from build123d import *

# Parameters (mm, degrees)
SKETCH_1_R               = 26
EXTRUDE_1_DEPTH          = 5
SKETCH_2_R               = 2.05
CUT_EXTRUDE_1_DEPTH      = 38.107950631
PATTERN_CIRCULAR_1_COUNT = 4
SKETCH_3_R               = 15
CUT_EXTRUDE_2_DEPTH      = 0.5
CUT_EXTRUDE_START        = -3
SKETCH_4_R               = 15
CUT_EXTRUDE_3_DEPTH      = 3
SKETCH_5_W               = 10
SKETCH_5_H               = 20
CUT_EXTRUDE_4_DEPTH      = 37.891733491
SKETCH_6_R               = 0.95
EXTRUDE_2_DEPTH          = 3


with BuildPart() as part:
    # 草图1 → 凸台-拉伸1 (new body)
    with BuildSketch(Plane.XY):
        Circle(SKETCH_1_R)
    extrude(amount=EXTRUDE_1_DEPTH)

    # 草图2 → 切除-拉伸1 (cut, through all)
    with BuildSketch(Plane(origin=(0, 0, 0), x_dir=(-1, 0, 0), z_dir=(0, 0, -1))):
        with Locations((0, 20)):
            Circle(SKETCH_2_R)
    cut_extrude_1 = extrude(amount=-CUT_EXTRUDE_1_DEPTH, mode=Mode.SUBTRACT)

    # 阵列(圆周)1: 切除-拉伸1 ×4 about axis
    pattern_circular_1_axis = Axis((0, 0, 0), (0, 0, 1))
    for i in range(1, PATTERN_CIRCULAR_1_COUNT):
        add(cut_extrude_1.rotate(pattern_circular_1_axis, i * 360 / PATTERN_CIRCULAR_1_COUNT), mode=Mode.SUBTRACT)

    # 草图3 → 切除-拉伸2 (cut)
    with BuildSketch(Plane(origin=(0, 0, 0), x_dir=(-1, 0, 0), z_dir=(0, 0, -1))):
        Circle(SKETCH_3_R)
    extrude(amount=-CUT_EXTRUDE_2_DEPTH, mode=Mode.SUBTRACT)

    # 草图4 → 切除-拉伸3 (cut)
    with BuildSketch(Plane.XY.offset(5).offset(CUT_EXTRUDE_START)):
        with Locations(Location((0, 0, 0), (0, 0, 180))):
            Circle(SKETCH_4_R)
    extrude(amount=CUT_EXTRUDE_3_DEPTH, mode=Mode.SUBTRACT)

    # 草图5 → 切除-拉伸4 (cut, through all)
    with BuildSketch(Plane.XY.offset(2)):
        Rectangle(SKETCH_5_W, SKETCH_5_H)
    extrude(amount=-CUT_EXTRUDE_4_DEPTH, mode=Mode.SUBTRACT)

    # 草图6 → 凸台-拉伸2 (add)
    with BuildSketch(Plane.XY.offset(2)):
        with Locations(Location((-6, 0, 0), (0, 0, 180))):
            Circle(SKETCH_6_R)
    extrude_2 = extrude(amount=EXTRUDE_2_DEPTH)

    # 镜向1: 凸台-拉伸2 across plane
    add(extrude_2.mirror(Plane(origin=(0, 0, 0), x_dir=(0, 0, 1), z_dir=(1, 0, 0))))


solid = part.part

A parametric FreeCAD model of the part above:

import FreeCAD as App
import Part
import Sketcher
Q = App.Units.Quantity


def add_polygon(sketch, points):
    """Adds a closed chain of lines whose ends are joined by coincident constraints."""
    first, n = sketch.GeometryCount, len(points)
    for a, b in zip(points, points[1:] + points[:1]):
        sketch.addGeometry(Part.LineSegment(App.Vector(*a, 0), App.Vector(*b, 0)), False)
    for i in range(n):
        sketch.addConstraint(Sketcher.Constraint("Coincident", first + i, 2, first + (i + 1) % n, 1))

doc = App.newDocument("Part")
params = doc.addObject("Spreadsheet::Sheet", "Params")
for row, (alias, value) in enumerate([
    ("sketch1_diameter", "52 mm"),
    ("pad1_length", "5 mm"),
    ("sketch2_diameter", "4.1 mm"),
    ("sketch3_diameter", "30 mm"),
    ("pocket2_length", "0.5 mm"),
    ("sketch4_diameter", "30 mm"),
    ("pocket3_length", "3 mm"),
    ("sketch5_width", "10 mm"),
    ("sketch5_height", "20 mm"),
    ("sketch6_diameter", "1.9 mm"),
    ("pad2_length", "3 mm"),
], start=1):
    params.set(f"A{row}", alias)
    params.set(f"B{row}", "=" + value)
    params.setAlias(f"B{row}", alias)

body = doc.addObject("PartDesign::Body", "Body")

sketch1 = body.newObject("Sketcher::SketchObject", "Sketch")
sketch1.AttachmentSupport = (doc.getObject("XY_Plane"), [""])
sketch1.MapMode = "FlatFace"
sketch1.addGeometry(Part.Circle(App.Vector(0, 0, 0), App.Vector(0, 0, 1), 26), False)
sketch1.addConstraint([
    Sketcher.Constraint("Coincident", 0, 3, -1, 1),
    Sketcher.Constraint("Diameter", 0, Q("52 mm")),
])
sketch1.setExpression("Constraints[1]", "Params.sketch1_diameter")
pad1 = body.newObject("PartDesign::Pad", "Pad")
pad1.Profile = sketch1
pad1.setExpression("Length", "Params.pad1_length")

sketch2 = body.newObject("Sketcher::SketchObject", "Sketch001")
sketch2.AttachmentSupport = (doc.getObject("XY_Plane"), [""])
sketch2.MapMode = "FlatFace"
sketch2.addGeometry(Part.Circle(App.Vector(0, 20, 0), App.Vector(0, 0, 1), 2.05), False)
sketch2.addConstraint([
    Sketcher.Constraint("PointOnObject", 0, 3, -2),
    Sketcher.Constraint("Diameter", 0, Q("4.1 mm")),
    Sketcher.Constraint("DistanceY", -1, 1, 0, 3, Q("20 mm")),
])
sketch2.setExpression("Constraints[1]", "Params.sketch2_diameter")
pocket1 = body.newObject("PartDesign::Pocket", "Pocket")
pocket1.Profile = sketch2
pocket1.Type = "ThroughAll"
pocket1.Reversed = True
doc.recompute()

polarpattern = body.newObject("PartDesign::PolarPattern", "PolarPattern")
polarpattern.Originals = [pocket1]
polarpattern.Axis = (doc.getObject("Z_Axis"), [""])
polarpattern.Angle = 360
polarpattern.Occurrences = 4
body.Tip = polarpattern

sketch3 = body.newObject("Sketcher::SketchObject", "Sketch002")
sketch3.AttachmentSupport = (doc.getObject("XY_Plane"), [""])
sketch3.MapMode = "FlatFace"
sketch3.addGeometry(Part.Circle(App.Vector(0, 0, 0), App.Vector(0, 0, 1), 15), False)
sketch3.addConstraint([
    Sketcher.Constraint("Coincident", 0, 3, -1, 1),
    Sketcher.Constraint("Diameter", 0, Q("30 mm")),
])
sketch3.setExpression("Constraints[1]", "Params.sketch3_diameter")
pocket2 = body.newObject("PartDesign::Pocket", "Pocket001")
pocket2.Profile = sketch3
pocket2.setExpression("Length", "Params.pocket2_length")
pocket2.Reversed = True

sketch4 = body.newObject("Sketcher::SketchObject", "Sketch003")
sketch4.AttachmentSupport = (doc.getObject("XY_Plane"), [""])
sketch4.MapMode = "FlatFace"
sketch4.AttachmentOffset = App.Placement(App.Vector(0, 0, 2), App.Rotation())
sketch4.addGeometry(Part.Circle(App.Vector(0, 0, 0), App.Vector(0, 0, 1), 15), False)
sketch4.addConstraint([
    Sketcher.Constraint("Coincident", 0, 3, -1, 1),
    Sketcher.Constraint("Diameter", 0, Q("30 mm")),
])
sketch4.setExpression("Constraints[1]", "Params.sketch4_diameter")
pocket3 = body.newObject("PartDesign::Pocket", "Pocket002")
pocket3.Profile = sketch4
pocket3.setExpression("Length", "Params.pocket3_length")
pocket3.Reversed = True

sketch5 = body.newObject("Sketcher::SketchObject", "Sketch004")
sketch5.AttachmentSupport = (doc.getObject("XY_Plane"), [""])
sketch5.MapMode = "FlatFace"
sketch5.AttachmentOffset = App.Placement(App.Vector(0, 0, 2), App.Rotation())
add_polygon(sketch5, [(-5, 10), (-5, -10), (5, -10), (5, 10)])
sketch5.addConstraint([
    Sketcher.Constraint("Vertical", 0),
    Sketcher.Constraint("Horizontal", 1),
    Sketcher.Constraint("Vertical", 2),
    Sketcher.Constraint("Horizontal", 3),
    Sketcher.Constraint("Symmetric", 0, 2, 2, 2, -1, 1),
    Sketcher.Constraint("DistanceX", 1, 1, 1, 2, Q("10 mm")),
    Sketcher.Constraint("DistanceY", 0, 2, 0, 1, Q("20 mm")),
])
sketch5.setExpression("Constraints[9]", "Params.sketch5_width")
sketch5.setExpression("Constraints[10]", "Params.sketch5_height")
pocket4 = body.newObject("PartDesign::Pocket", "Pocket003")
pocket4.Profile = sketch5
pocket4.Type = "ThroughAll"

sketch6 = body.newObject("Sketcher::SketchObject", "Sketch005")
sketch6.AttachmentSupport = (doc.getObject("XY_Plane"), [""])
sketch6.MapMode = "FlatFace"
sketch6.AttachmentOffset = App.Placement(App.Vector(0, 0, 2), App.Rotation())
sketch6.addGeometry(Part.Circle(App.Vector(-6, 0, 0), App.Vector(0, 0, 1), 0.95), False)
sketch6.addConstraint([
    Sketcher.Constraint("PointOnObject", 0, 3, -1),
    Sketcher.Constraint("Diameter", 0, Q("1.9 mm")),
    Sketcher.Constraint("DistanceX", 0, 3, -1, 1, Q("6 mm")),
])
sketch6.setExpression("Constraints[1]", "Params.sketch6_diameter")
pad2 = body.newObject("PartDesign::Pad", "Pad001")
pad2.Profile = sketch6
pad2.setExpression("Length", "Params.pad2_length")
doc.recompute()

mirrored = body.newObject("PartDesign::Mirrored", "Mirrored")
mirrored.Originals = [pad2]
mirrored.MirrorPlane = (doc.getObject("YZ_Plane"), [""])
body.Tip = mirrored

doc.recompute()
